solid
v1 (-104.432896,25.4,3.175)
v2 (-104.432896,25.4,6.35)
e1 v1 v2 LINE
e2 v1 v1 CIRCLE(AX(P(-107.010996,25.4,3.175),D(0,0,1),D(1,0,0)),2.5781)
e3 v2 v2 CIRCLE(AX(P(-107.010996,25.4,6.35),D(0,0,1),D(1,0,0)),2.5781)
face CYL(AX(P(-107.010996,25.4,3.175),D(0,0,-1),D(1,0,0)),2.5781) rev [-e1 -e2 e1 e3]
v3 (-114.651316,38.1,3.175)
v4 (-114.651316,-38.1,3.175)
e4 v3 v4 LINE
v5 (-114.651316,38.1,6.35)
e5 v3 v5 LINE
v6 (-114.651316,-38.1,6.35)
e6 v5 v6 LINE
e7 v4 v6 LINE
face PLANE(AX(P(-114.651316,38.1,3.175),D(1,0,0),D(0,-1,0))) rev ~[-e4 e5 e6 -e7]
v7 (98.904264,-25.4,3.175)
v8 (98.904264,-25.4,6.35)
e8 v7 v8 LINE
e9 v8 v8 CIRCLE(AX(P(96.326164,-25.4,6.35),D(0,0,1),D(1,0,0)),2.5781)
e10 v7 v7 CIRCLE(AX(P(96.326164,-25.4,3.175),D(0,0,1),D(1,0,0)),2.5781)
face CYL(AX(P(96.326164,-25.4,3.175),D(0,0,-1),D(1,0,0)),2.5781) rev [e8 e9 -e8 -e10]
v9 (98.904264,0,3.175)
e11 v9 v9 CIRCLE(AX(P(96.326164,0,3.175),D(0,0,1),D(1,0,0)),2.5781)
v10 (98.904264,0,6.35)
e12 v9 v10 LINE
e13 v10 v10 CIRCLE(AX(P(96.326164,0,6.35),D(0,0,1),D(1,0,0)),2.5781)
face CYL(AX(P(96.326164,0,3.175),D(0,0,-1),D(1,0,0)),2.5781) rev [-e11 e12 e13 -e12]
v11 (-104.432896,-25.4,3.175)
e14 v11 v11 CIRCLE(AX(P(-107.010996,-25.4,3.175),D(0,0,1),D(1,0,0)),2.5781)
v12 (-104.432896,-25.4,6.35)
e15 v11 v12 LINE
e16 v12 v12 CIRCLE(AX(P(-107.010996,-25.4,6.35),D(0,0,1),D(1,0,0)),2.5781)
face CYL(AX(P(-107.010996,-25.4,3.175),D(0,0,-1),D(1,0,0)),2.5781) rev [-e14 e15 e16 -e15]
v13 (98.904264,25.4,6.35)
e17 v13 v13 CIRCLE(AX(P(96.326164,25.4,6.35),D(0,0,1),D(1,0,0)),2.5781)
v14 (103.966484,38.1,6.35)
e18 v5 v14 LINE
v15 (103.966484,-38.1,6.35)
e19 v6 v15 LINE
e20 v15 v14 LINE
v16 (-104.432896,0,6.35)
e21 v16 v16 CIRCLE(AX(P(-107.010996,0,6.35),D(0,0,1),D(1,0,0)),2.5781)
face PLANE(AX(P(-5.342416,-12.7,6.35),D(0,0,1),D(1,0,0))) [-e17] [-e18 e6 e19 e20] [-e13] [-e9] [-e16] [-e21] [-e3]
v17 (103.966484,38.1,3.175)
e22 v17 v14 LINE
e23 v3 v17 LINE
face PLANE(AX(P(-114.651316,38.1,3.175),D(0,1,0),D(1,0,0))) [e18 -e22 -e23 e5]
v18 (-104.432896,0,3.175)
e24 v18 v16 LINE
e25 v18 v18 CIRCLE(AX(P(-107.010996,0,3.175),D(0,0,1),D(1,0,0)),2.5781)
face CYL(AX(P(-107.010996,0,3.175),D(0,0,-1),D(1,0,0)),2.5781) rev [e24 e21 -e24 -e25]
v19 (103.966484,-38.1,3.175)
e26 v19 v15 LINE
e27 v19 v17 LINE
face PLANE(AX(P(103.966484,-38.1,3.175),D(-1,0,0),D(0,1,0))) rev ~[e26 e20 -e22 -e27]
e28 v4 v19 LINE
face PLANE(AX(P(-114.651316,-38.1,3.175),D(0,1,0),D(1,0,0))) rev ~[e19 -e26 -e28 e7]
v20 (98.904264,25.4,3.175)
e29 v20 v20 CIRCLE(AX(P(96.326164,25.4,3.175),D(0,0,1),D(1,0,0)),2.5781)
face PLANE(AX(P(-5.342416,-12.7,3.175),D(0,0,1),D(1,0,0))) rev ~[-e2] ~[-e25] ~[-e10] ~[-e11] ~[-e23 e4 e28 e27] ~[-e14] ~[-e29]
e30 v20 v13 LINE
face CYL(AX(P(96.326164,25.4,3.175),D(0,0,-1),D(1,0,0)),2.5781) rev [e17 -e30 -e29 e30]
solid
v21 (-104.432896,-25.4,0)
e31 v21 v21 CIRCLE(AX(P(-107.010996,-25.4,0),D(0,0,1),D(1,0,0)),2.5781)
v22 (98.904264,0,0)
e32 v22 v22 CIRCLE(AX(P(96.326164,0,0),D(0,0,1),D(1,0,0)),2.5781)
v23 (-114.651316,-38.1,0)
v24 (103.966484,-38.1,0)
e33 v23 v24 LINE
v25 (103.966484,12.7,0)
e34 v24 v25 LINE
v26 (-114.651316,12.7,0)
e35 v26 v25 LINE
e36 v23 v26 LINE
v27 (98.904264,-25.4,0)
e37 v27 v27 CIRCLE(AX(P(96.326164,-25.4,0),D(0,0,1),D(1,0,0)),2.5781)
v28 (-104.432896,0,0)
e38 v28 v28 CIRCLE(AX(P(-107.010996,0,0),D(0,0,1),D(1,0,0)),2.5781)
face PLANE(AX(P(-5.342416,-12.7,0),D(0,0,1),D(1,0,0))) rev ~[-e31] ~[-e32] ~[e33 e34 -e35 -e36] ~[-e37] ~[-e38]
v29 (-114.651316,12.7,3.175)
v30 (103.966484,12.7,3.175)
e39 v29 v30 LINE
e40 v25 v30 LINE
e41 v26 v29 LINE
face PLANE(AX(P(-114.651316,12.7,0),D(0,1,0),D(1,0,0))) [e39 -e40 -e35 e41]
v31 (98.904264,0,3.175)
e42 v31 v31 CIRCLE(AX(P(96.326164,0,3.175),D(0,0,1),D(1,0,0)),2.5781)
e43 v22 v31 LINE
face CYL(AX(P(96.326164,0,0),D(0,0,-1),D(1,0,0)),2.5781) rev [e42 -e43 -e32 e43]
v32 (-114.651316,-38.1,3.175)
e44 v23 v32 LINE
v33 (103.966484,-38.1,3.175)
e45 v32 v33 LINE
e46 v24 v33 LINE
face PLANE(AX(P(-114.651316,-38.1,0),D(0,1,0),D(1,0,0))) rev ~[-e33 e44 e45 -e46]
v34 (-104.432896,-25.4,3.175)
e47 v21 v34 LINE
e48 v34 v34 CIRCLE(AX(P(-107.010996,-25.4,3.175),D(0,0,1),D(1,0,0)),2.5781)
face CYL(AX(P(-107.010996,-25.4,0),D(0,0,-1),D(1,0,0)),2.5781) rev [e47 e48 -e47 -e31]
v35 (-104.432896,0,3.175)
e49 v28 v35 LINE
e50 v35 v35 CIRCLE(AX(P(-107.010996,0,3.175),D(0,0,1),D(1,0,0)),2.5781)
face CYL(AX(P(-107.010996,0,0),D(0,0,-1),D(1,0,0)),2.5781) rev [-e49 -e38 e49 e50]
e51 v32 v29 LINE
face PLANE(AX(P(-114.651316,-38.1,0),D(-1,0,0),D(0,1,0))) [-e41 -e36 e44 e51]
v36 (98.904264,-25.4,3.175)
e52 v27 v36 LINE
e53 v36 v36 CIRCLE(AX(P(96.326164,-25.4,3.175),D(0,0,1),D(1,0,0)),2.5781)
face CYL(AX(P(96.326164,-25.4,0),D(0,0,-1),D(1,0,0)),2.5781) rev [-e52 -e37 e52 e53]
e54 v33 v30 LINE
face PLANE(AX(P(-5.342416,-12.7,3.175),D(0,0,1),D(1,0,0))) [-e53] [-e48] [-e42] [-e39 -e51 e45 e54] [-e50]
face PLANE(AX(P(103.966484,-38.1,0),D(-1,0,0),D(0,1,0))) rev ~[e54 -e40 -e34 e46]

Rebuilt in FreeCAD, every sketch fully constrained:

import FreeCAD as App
import Part
import Sketcher
Q = App.Units.Quantity


def add_polygon(sketch, points):
    """Adds a closed chain of lines whose ends are joined by coincident constraints."""
    first, n = sketch.GeometryCount, len(points)
    for a, b in zip(points, points[1:] + points[:1]):
        sketch.addGeometry(Part.LineSegment(App.Vector(*a, 0), App.Vector(*b, 0)), False)
    for i in range(n):
        sketch.addConstraint(Sketcher.Constraint("Coincident", first + i, 2, first + (i + 1) % n, 1))

doc = App.newDocument("Part")
params = doc.addObject("Spreadsheet::Sheet", "Params")
for row, (alias, value) in enumerate([
    ("sketch1_height", "2 in"),
    ("sketch1_diameter", "0.203 in"),
    ("sketch1_width", "8.607 in"),
    ("pad1_length", "0.125 in"),
    ("sketch2_height", "3 in"),
    ("sketch2_diameter", "0.203 in"),
    ("sketch2_width", "8.607 in"),
    ("pad2_length", "0.125 in"),
], start=1):
    params.set(f"A{row}", alias)
    params.set(f"B{row}", "=" + value)
    params.setAlias(f"B{row}", alias)

body = doc.addObject("PartDesign::Body", "Body")

sketch1 = body.newObject("Sketcher::SketchObject", "Sketch")
sketch1.AttachmentSupport = (doc.getObject("XY_Plane"), [""])
sketch1.MapMode = "FlatFace"
add_polygon(sketch1, [(-114.7, 12.7), (-114.7, -38.1), (104, -38.1), (104, 12.7)])
sketch1.addGeometry(Part.Circle(App.Vector(-107, -25.4, 0), App.Vector(0, 0, 1), 2.6), False)
sketch1.addGeometry(Part.Circle(App.Vector(96.3, -25.4, 0), App.Vector(0, 0, 1), 2.6), False)
sketch1.addGeometry(Part.Circle(App.Vector(-107, 0, 0), App.Vector(0, 0, 1), 2.6), False)
sketch1.addGeometry(Part.Circle(App.Vector(96.3, 0, 0), App.Vector(0, 0, 1), 2.6), False)
sketch1.addConstraint(Sketcher.Constraint("Vertical", 0))
sketch1.addConstraint(Sketcher.Constraint("Horizontal", 1))
sketch1.addConstraint(Sketcher.Constraint("Vertical", 2))
sketch1.addConstraint(Sketcher.Constraint("Horizontal", 3))
sketch1.addConstraint(Sketcher.Constraint("Equal", 4, 5))
sketch1.addConstraint(Sketcher.Constraint("Equal", 5, 6))
sketch1.addConstraint(Sketcher.Constraint("Equal", 6, 7))
sketch1.addConstraint(Sketcher.Constraint("PointOnObject", 6, 3, -1))
sketch1.addConstraint(Sketcher.Constraint("PointOnObject", 7, 3, -1))
sketch1.addConstraint(Sketcher.Constraint("Horizontal", 4, 3, 5, 3))
sketch1.addConstraint(Sketcher.Constraint("Vertical", 4, 3, 6, 3))
sketch1.addConstraint(Sketcher.Constraint("Vertical", 5, 3, 7, 3))
sketch1.addConstraint(Sketcher.Constraint("DistanceY", 0, 2, 0, 1, Q("2 in")))
sketch1.addConstraint(Sketcher.Constraint("Diameter", 4, Q("0.203 in")))
sketch1.addConstraint(Sketcher.Constraint("DistanceY", 4, 3, -1, 1, Q("1 in")))
sketch1.addConstraint(Sketcher.Constraint("DistanceY", 0, 2, -1, 1, Q("1.5 in")))
sketch1.addConstraint(Sketcher.Constraint("DistanceX", 1, 1, 1, 2, Q("8.607 in")))
sketch1.addConstraint(Sketcher.Constraint("DistanceX", 4, 3, 5, 3, Q("8.0054 in")))
sketch1.addConstraint(Sketcher.Constraint("DistanceX", 0, 2, 4, 3, Q("0.3008 in")))
sketch1.addConstraint(Sketcher.Constraint("DistanceX", 4, 3, -1, 1, Q("107.010996 mm")))
sketch1.setExpression("Constraints[16]", "Params.sketch1_height")
sketch1.setExpression("Constraints[17]", "Params.sketch1_diameter")
sketch1.setExpression("Constraints[20]", "Params.sketch1_width")
pad1 = body.newObject("PartDesign::Pad", "Pad")
pad1.Profile = sketch1
pad1.setExpression("Length", "Params.pad1_length")
body2 = doc.addObject("PartDesign::Body", "Body001")

sketch2 = body2.newObject("Sketcher::SketchObject", "Sketch001")
sketch2.AttachmentSupport = (doc.getObject("XY_Plane001"), [""])
sketch2.MapMode = "FlatFace"
sketch2.AttachmentOffset = App.Placement(App.Vector(0, 0, 0.125 * 25.4), App.Rotation())
add_polygon(sketch2, [(-114.7, -38.1), (104, -38.1), (104, 38.1), (-114.7, 38.1)])
sketch2.addGeometry(Part.Circle(App.Vector(-107, -25.4, 0), App.Vector(0, 0, 1), 2.6), False)
sketch2.addGeometry(Part.Circle(App.Vector(96.3, -25.4, 0), App.Vector(0, 0, 1), 2.6), False)
sketch2.addGeometry(Part.Circle(App.Vector(-107, 0, 0), App.Vector(0, 0, 1), 2.6), False)
sketch2.addGeometry(Part.Circle(App.Vector(-107, 25.4, 0), App.Vector(0, 0, 1), 2.6), False)
sketch2.addGeometry(Part.Circle(App.Vector(96.3, 0, 0), App.Vector(0, 0, 1), 2.6), False)
sketch2.addGeometry(Part.Circle(App.Vector(96.3, 25.4, 0), App.Vector(0, 0, 1), 2.6), False)
sketch2.addConstraint(Sketcher.Constraint("Horizontal", 0))
sketch2.addConstraint(Sketcher.Constraint("Vertical", 1))
sketch2.addConstraint(Sketcher.Constraint("Horizontal", 2))
sketch2.addConstraint(Sketcher.Constraint("Vertical", 3))
sketch2.addConstraint(Sketcher.Constraint("Equal", 4, 5))
sketch2.addConstraint(Sketcher.Constraint("Equal", 5, 6))
sketch2.addConstraint(Sketcher.Constraint("Equal", 6, 7))
sketch2.addConstraint(Sketcher.Constraint("Equal", 7, 8))
sketch2.addConstraint(Sketcher.Constraint("Equal", 8, 9))
sketch2.addConstraint(Sketcher.Constraint("Symmetric", 4, 3, 7, 3, -1))
sketch2.addConstraint(Sketcher.Constraint("Symmetric", 5, 3, 9, 3, -1))
sketch2.addConstraint(Sketcher.Constraint("PointOnObject", 6, 3, -1))
sketch2.addConstraint(Sketcher.Constraint("PointOnObject", 8, 3, -1))
sketch2.addConstraint(Sketcher.Constraint("Horizontal", 4, 3, 5, 3))
sketch2.addConstraint(Sketcher.Constraint("Vertical", 4, 3, 6, 3))
sketch2.addConstraint(Sketcher.Constraint("Vertical", 5, 3, 8, 3))
sketch2.addConstraint(Sketcher.Constraint("DistanceY", 1, 1, 1, 2, Q("3 in")))
sketch2.addConstraint(Sketcher.Constraint("Diameter", 4, Q("0.203 in")))
sketch2.addConstraint(Sketcher.Constraint("DistanceY", 4, 3, -1, 1, Q("1 in")))
sketch2.addConstraint(Sketcher.Constraint("DistanceY", 0, 2, -1, 1, Q("1.5 in")))
sketch2.addConstraint(Sketcher.Constraint("DistanceX", 0, 1, 0, 2, Q("8.607 in")))
sketch2.addConstraint(Sketcher.Constraint("DistanceX", 4, 3, 5, 3, Q("8.0054 in")))
sketch2.addConstraint(Sketcher.Constraint("DistanceX", 5, 3, 0, 2, Q("0.3008 in")))
sketch2.addConstraint(Sketcher.Constraint("DistanceX", 4, 3, -1, 1, Q("107.010996 mm")))
sketch2.setExpression("Constraints[20]", "Params.sketch2_height")
sketch2.setExpression("Constraints[21]", "Params.sketch2_diameter")
sketch2.setExpression("Constraints[24]", "Params.sketch2_width")
pad2 = body2.newObject("PartDesign::Pad", "Pad001")
pad2.Profile = sketch2
pad2.setExpression("Length", "Params.pad2_length")

doc.recompute()
